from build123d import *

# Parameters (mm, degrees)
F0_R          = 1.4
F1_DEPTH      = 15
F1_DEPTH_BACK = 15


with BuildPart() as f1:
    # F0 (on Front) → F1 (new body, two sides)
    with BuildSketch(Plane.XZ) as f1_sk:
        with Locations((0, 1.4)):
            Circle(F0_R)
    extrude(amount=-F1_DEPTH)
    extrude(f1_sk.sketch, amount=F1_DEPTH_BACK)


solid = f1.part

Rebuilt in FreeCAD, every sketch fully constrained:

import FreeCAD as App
import Part
import Sketcher

V = App.Vector
Q = App.Units.Quantity

doc = App.newDocument("Part")
body = doc.addObject("PartDesign::Body", "Body")

# Sketch on XZ plane
sketch1 = body.newObject("Sketcher::SketchObject", "Sketch")
sketch1.AttachmentSupport = (doc.getObject("XZ_Plane"), [""])
sketch1.MapMode = "FlatFace"
sketch1.addGeometry(Part.Circle(V(0, 1.4, 0), V(0, 0, 1), 1.4), False)
sketch1.addConstraint(Sketcher.Constraint("PointOnObject", 0, 3, -2))
sketch1.addConstraint(Sketcher.Constraint("Diameter", 0, Q("2.8 mm")))
sketch1.addConstraint(Sketcher.Constraint("DistanceY", -1, 1, 0, 3, Q("1.4 mm")))
pad1 = body.newObject("PartDesign::Pad", "Pad")
pad1.Profile = sketch1
pad1.Type = "TwoLengths"
pad1.Length = 15
pad1.Length2 = 15
pad1.Reversed = True

doc.recompute()
